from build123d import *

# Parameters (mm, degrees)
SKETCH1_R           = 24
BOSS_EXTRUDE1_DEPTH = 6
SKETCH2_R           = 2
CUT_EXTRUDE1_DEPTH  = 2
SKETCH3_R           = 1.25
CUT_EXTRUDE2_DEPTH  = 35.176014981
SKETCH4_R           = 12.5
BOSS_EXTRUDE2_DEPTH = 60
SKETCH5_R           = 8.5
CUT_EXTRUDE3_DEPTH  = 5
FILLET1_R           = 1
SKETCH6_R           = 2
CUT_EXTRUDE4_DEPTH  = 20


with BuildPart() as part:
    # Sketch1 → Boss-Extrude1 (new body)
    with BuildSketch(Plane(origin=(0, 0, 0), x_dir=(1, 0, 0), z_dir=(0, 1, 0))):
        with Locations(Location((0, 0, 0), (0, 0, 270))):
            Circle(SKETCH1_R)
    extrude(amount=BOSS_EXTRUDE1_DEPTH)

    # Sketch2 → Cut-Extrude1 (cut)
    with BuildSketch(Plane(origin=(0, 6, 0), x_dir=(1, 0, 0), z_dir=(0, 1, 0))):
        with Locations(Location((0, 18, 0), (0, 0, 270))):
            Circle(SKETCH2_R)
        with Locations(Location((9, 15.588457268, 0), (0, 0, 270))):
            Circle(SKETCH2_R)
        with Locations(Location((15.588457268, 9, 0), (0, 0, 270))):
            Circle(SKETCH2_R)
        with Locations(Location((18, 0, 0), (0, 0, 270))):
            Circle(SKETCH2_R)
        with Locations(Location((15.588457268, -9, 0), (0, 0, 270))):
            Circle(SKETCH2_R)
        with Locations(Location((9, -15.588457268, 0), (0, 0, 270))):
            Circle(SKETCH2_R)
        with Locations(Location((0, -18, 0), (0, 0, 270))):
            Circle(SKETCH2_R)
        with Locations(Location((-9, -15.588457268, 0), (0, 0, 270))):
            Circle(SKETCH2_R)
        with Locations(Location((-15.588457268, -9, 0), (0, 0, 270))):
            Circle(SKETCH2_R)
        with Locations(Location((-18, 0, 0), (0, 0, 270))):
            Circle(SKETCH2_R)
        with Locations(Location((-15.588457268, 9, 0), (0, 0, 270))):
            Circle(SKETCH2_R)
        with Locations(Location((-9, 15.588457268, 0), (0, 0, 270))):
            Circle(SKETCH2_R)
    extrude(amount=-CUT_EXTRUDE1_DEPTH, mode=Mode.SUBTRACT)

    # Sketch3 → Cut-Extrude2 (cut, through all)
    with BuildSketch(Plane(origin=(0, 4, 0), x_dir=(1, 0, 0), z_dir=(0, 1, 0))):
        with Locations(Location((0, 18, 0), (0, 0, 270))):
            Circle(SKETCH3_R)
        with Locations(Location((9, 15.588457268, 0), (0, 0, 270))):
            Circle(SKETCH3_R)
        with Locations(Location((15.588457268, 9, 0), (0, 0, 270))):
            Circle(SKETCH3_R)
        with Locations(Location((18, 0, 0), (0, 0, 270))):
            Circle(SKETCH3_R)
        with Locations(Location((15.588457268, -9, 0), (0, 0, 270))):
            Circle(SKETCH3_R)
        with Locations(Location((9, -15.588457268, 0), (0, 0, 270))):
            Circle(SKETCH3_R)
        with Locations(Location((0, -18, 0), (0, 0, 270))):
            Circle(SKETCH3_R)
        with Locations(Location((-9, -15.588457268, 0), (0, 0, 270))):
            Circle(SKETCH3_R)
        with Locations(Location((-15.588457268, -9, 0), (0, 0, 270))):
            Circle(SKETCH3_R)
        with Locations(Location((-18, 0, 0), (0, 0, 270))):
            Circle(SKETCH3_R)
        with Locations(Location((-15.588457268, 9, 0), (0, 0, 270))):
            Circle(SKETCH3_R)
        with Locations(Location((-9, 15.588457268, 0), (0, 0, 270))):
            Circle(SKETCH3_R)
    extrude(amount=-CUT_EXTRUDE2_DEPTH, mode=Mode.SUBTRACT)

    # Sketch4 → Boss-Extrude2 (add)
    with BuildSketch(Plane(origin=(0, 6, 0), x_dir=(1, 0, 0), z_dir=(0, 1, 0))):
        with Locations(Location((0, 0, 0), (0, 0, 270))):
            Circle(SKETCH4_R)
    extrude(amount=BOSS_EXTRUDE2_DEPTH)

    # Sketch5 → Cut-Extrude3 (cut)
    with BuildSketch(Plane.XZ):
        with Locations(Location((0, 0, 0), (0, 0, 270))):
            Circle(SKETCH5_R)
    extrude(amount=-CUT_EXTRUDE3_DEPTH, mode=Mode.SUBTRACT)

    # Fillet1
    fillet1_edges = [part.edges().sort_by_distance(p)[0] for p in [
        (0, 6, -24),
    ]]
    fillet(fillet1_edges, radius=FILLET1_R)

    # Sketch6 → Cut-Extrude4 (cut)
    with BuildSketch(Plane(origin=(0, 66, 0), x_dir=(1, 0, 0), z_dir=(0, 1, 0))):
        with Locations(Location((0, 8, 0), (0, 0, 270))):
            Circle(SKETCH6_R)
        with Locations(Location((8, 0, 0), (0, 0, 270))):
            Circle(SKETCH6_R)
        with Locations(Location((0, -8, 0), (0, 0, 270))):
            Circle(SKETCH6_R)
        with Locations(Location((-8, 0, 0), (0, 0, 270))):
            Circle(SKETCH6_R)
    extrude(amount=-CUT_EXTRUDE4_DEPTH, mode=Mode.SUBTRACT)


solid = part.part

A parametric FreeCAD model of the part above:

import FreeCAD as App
import Part
import Sketcher

V = App.Vector
Q = App.Units.Quantity


def edges_at(feature, points):
    """Names of the edges that pass closest to the given points."""
    edges = feature.Shape.Edges
    near = lambda p: min(range(len(edges)), key=lambda i: edges[i].distToShape(Part.Vertex(*p))[0])
    return sorted({f"Edge{near(p) + 1}" for p in points})

doc = App.newDocument("Part")
body = doc.addObject("PartDesign::Body", "Body")

sketch1 = doc.addObject("Sketcher::SketchObject", "Sketch")
body.addObject(sketch1)
sketch1.AttachmentSupport = (doc.XZ_Plane, [""])
sketch1.MapMode = "FlatFace"
sketch1.addGeometry(Part.Circle(V(0, 0, 0), V(0, 0, 1), 24), False)
sketch1.addConstraint([
    Sketcher.Constraint("Coincident", 0, 3, -1, 1),
    Sketcher.Constraint("Diameter", 0, Q("48 mm")),
])
pad1 = doc.addObject("PartDesign::Pad", "Pad")
body.addObject(pad1)
pad1.Profile = sketch1
pad1.Length = 6
pad1.Reversed = True

sketch2 = doc.addObject("Sketcher::SketchObject", "Sketch001")
body.addObject(sketch2)
sketch2.AttachmentSupport = (doc.XZ_Plane, [""])
sketch2.MapMode = "FlatFace"
sketch2.AttachmentOffset = App.Placement(V(0, 0, -6), App.Rotation())
sketch2.addGeometry([
    Part.Circle(V(0, -18, 0), V(0, 0, 1), 2),
    Part.Circle(V(9, -15.588457, 0), V(0, 0, 1), 2),
    Part.Circle(V(15.588457, -9, 0), V(0, 0, 1), 2),
    Part.Circle(V(18, 0, 0), V(0, 0, 1), 2),
    Part.Circle(V(15.588457, 9, 0), V(0, 0, 1), 2),
    Part.Circle(V(9, 15.588457, 0), V(0, 0, 1), 2),
    Part.Circle(V(0, 18, 0), V(0, 0, 1), 2),
    Part.Circle(V(-9, 15.588457, 0), V(0, 0, 1), 2),
    Part.Circle(V(-15.588457, 9, 0), V(0, 0, 1), 2),
    Part.Circle(V(-18, 0, 0), V(0, 0, 1), 2),
    Part.Circle(V(-15.588457, -9, 0), V(0, 0, 1), 2),
    Part.Circle(V(-9, -15.588457, 0), V(0, 0, 1), 2),
], False)
sketch2.addConstraint([
    Sketcher.Constraint("Equal", 0, 1),
    Sketcher.Constraint("Equal", 1, 2),
    Sketcher.Constraint("Equal", 2, 3),
    Sketcher.Constraint("Equal", 3, 4),
    Sketcher.Constraint("Equal", 4, 5),
    Sketcher.Constraint("Equal", 5, 6),
    Sketcher.Constraint("Equal", 6, 7),
    Sketcher.Constraint("Equal", 7, 8),
    Sketcher.Constraint("Equal", 8, 9),
    Sketcher.Constraint("Equal", 9, 10),
    Sketcher.Constraint("Equal", 10, 11),
    Sketcher.Constraint("Symmetric", 0, 3, 6, 3, -1, 1),
    Sketcher.Constraint("Symmetric", 1, 3, 7, 3, -1, 1),
    Sketcher.Constraint("Symmetric", 2, 3, 8, 3, -1, 1),
    Sketcher.Constraint("Symmetric", 3, 3, 9, 3, -1, 1),
    Sketcher.Constraint("Symmetric", 4, 3, 10, 3, -1, 1),
    Sketcher.Constraint("Symmetric", 5, 3, 11, 3, -1, 1),
    Sketcher.Constraint("Symmetric", 5, 3, 7, 3, -2),
    Sketcher.Constraint("Symmetric", 4, 3, 8, 3, -2),
    Sketcher.Constraint("PointOnObject", 0, 3, -2),
    Sketcher.Constraint("PointOnObject", 3, 3, -1),
    Sketcher.Constraint("Diameter", 0, Q("4 mm")),
    Sketcher.Constraint("DistanceY", 0, 3, -1, 1, Q("18 mm")),
    Sketcher.Constraint("DistanceX", -1, 1, 1, 3, Q("9 mm")),
    Sketcher.Constraint("DistanceY", 2, 3, -1, 1, Q("9 mm")),
    Sketcher.Constraint("DistanceX", -1, 1, 3, 3, Q("18 mm")),
    Sketcher.Constraint("DistanceY", 1, 3, -1, 1, Q("15.588457 mm")),
    Sketcher.Constraint("DistanceX", -1, 1, 2, 3, Q("15.588457 mm")),
])
pocket1 = doc.addObject("PartDesign::Pocket", "Pocket")
body.addObject(pocket1)
pocket1.Profile = sketch2
pocket1.Length = 2
pocket1.Reversed = True

sketch3 = doc.addObject("Sketcher::SketchObject", "Sketch002")
body.addObject(sketch3)
sketch3.AttachmentSupport = (doc.XZ_Plane, [""])
sketch3.MapMode = "FlatFace"
sketch3.AttachmentOffset = App.Placement(V(0, 0, -4), App.Rotation())
sketch3.addGeometry([
    Part.Circle(V(0, -18, 0), V(0, 0, 1), 1.25),
    Part.Circle(V(9, -15.588457, 0), V(0, 0, 1), 1.25),
    Part.Circle(V(15.588457, -9, 0), V(0, 0, 1), 1.25),
    Part.Circle(V(18, 0, 0), V(0, 0, 1), 1.25),
    Part.Circle(V(15.588457, 9, 0), V(0, 0, 1), 1.25),
    Part.Circle(V(9, 15.588457, 0), V(0, 0, 1), 1.25),
    Part.Circle(V(0, 18, 0), V(0, 0, 1), 1.25),
    Part.Circle(V(-9, 15.588457, 0), V(0, 0, 1), 1.25),
    Part.Circle(V(-15.588457, 9, 0), V(0, 0, 1), 1.25),
    Part.Circle(V(-18, 0, 0), V(0, 0, 1), 1.25),
    Part.Circle(V(-15.588457, -9, 0), V(0, 0, 1), 1.25),
    Part.Circle(V(-9, -15.588457, 0), V(0, 0, 1), 1.25),
], False)
sketch3.addConstraint([
    Sketcher.Constraint("Equal", 0, 1),
    Sketcher.Constraint("Equal", 1, 2),
    Sketcher.Constraint("Equal", 2, 3),
    Sketcher.Constraint("Equal", 3, 4),
    Sketcher.Constraint("Equal", 4, 5),
    Sketcher.Constraint("Equal", 5, 6),
    Sketcher.Constraint("Equal", 6, 7),
    Sketcher.Constraint("Equal", 7, 8),
    Sketcher.Constraint("Equal", 8, 9),
    Sketcher.Constraint("Equal", 9, 10),
    Sketcher.Constraint("Equal", 10, 11),
    Sketcher.Constraint("Symmetric", 0, 3, 6, 3, -1, 1),
    Sketcher.Constraint("Symmetric", 1, 3, 7, 3, -1, 1),
    Sketcher.Constraint("Symmetric", 2, 3, 8, 3, -1, 1),
    Sketcher.Constraint("Symmetric", 3, 3, 9, 3, -1, 1),
    Sketcher.Constraint("Symmetric", 4, 3, 10, 3, -1, 1),
    Sketcher.Constraint("Symmetric", 5, 3, 11, 3, -1, 1),
    Sketcher.Constraint("Symmetric", 5, 3, 7, 3, -2),
    Sketcher.Constraint("Symmetric", 4, 3, 8, 3, -2),
    Sketcher.Constraint("PointOnObject", 0, 3, -2),
    Sketcher.Constraint("PointOnObject", 3, 3, -1),
    Sketcher.Constraint("Diameter", 0, Q("2.5 mm")),
    Sketcher.Constraint("DistanceY", 0, 3, -1, 1, Q("18 mm")),
    Sketcher.Constraint("DistanceX", -1, 1, 1, 3, Q("9 mm")),
    Sketcher.Constraint("DistanceY", 2, 3, -1, 1, Q("9 mm")),
    Sketcher.Constraint("DistanceX", -1, 1, 3, 3, Q("18 mm")),
    Sketcher.Constraint("DistanceY", 1, 3, -1, 1, Q("15.588457 mm")),
    Sketcher.Constraint("DistanceX", -1, 1, 2, 3, Q("15.588457 mm")),
])
pocket2 = doc.addObject("PartDesign::Pocket", "Pocket001")
body.addObject(pocket2)
pocket2.Profile = sketch3
pocket2.Type = "ThroughAll"
pocket2.Reversed = True

sketch4 = doc.addObject("Sketcher::SketchObject", "Sketch003")
body.addObject(sketch4)
sketch4.AttachmentSupport = (doc.XZ_Plane, [""])
sketch4.MapMode = "FlatFace"
sketch4.AttachmentOffset = App.Placement(V(0, 0, -6), App.Rotation())
sketch4.addGeometry(Part.Circle(V(0, 0, 0), V(0, 0, 1), 12.5), False)
sketch4.addConstraint([
    Sketcher.Constraint("Coincident", 0, 3, -1, 1),
    Sketcher.Constraint("Diameter", 0, Q("25 mm")),
])
pad2 = doc.addObject("PartDesign::Pad", "Pad001")
body.addObject(pad2)
pad2.Profile = sketch4
pad2.Length = 60
pad2.Reversed = True

sketch5 = doc.addObject("Sketcher::SketchObject", "Sketch004")
body.addObject(sketch5)
sketch5.AttachmentSupport = (doc.XZ_Plane, [""])
sketch5.MapMode = "FlatFace"
sketch5.addGeometry(Part.Circle(V(0, 0, 0), V(0, 0, 1), 8.5), False)
sketch5.addConstraint([
    Sketcher.Constraint("Coincident", 0, 3, -1, 1),
    Sketcher.Constraint("Diameter", 0, Q("17 mm")),
])
pocket3 = doc.addObject("PartDesign::Pocket", "Pocket002")
body.addObject(pocket3)
pocket3.Profile = sketch5
pocket3.Length = 5
doc.recompute()

fillet = doc.addObject("PartDesign::Fillet", "Fillet")
body.addObject(fillet)
fillet.Base = (pocket3, edges_at(pocket3, [(0, 6, -24)]))
fillet.Radius = 1

sketch6 = doc.addObject("Sketcher::SketchObject", "Sketch005")
body.addObject(sketch6)
sketch6.AttachmentSupport = (doc.XZ_Plane, [""])
sketch6.MapMode = "FlatFace"
sketch6.AttachmentOffset = App.Placement(V(0, 0, -66), App.Rotation())
sketch6.addGeometry([
    Part.Circle(V(0, -8, 0), V(0, 0, 1), 2),
    Part.Circle(V(8, 0, 0), V(0, 0, 1), 2),
    Part.Circle(V(0, 8, 0), V(0, 0, 1), 2),
    Part.Circle(V(-8, 0, 0), V(0, 0, 1), 2),
], False)
sketch6.addConstraint([
    Sketcher.Constraint("Equal", 0, 1),
    Sketcher.Constraint("Equal", 1, 2),
    Sketcher.Constraint("Equal", 2, 3),
    Sketcher.Constraint("Symmetric", 0, 3, 2, 3, -1, 1),
    Sketcher.Constraint("Symmetric", 1, 3, 3, 3, -1, 1),
    Sketcher.Constraint("PointOnObject", 0, 3, -2),
    Sketcher.Constraint("PointOnObject", 1, 3, -1),
    Sketcher.Constraint("Diameter", 0, Q("4 mm")),
    Sketcher.Constraint("DistanceY", 0, 3, -1, 1, Q("8 mm")),
    Sketcher.Constraint("DistanceX", -1, 1, 1, 3, Q("8 mm")),
])
pocket4 = doc.addObject("PartDesign::Pocket", "Pocket003")
body.addObject(pocket4)
pocket4.Profile = sketch6
pocket4.Length = 20
pocket4.Reversed = True

doc.recompute()
